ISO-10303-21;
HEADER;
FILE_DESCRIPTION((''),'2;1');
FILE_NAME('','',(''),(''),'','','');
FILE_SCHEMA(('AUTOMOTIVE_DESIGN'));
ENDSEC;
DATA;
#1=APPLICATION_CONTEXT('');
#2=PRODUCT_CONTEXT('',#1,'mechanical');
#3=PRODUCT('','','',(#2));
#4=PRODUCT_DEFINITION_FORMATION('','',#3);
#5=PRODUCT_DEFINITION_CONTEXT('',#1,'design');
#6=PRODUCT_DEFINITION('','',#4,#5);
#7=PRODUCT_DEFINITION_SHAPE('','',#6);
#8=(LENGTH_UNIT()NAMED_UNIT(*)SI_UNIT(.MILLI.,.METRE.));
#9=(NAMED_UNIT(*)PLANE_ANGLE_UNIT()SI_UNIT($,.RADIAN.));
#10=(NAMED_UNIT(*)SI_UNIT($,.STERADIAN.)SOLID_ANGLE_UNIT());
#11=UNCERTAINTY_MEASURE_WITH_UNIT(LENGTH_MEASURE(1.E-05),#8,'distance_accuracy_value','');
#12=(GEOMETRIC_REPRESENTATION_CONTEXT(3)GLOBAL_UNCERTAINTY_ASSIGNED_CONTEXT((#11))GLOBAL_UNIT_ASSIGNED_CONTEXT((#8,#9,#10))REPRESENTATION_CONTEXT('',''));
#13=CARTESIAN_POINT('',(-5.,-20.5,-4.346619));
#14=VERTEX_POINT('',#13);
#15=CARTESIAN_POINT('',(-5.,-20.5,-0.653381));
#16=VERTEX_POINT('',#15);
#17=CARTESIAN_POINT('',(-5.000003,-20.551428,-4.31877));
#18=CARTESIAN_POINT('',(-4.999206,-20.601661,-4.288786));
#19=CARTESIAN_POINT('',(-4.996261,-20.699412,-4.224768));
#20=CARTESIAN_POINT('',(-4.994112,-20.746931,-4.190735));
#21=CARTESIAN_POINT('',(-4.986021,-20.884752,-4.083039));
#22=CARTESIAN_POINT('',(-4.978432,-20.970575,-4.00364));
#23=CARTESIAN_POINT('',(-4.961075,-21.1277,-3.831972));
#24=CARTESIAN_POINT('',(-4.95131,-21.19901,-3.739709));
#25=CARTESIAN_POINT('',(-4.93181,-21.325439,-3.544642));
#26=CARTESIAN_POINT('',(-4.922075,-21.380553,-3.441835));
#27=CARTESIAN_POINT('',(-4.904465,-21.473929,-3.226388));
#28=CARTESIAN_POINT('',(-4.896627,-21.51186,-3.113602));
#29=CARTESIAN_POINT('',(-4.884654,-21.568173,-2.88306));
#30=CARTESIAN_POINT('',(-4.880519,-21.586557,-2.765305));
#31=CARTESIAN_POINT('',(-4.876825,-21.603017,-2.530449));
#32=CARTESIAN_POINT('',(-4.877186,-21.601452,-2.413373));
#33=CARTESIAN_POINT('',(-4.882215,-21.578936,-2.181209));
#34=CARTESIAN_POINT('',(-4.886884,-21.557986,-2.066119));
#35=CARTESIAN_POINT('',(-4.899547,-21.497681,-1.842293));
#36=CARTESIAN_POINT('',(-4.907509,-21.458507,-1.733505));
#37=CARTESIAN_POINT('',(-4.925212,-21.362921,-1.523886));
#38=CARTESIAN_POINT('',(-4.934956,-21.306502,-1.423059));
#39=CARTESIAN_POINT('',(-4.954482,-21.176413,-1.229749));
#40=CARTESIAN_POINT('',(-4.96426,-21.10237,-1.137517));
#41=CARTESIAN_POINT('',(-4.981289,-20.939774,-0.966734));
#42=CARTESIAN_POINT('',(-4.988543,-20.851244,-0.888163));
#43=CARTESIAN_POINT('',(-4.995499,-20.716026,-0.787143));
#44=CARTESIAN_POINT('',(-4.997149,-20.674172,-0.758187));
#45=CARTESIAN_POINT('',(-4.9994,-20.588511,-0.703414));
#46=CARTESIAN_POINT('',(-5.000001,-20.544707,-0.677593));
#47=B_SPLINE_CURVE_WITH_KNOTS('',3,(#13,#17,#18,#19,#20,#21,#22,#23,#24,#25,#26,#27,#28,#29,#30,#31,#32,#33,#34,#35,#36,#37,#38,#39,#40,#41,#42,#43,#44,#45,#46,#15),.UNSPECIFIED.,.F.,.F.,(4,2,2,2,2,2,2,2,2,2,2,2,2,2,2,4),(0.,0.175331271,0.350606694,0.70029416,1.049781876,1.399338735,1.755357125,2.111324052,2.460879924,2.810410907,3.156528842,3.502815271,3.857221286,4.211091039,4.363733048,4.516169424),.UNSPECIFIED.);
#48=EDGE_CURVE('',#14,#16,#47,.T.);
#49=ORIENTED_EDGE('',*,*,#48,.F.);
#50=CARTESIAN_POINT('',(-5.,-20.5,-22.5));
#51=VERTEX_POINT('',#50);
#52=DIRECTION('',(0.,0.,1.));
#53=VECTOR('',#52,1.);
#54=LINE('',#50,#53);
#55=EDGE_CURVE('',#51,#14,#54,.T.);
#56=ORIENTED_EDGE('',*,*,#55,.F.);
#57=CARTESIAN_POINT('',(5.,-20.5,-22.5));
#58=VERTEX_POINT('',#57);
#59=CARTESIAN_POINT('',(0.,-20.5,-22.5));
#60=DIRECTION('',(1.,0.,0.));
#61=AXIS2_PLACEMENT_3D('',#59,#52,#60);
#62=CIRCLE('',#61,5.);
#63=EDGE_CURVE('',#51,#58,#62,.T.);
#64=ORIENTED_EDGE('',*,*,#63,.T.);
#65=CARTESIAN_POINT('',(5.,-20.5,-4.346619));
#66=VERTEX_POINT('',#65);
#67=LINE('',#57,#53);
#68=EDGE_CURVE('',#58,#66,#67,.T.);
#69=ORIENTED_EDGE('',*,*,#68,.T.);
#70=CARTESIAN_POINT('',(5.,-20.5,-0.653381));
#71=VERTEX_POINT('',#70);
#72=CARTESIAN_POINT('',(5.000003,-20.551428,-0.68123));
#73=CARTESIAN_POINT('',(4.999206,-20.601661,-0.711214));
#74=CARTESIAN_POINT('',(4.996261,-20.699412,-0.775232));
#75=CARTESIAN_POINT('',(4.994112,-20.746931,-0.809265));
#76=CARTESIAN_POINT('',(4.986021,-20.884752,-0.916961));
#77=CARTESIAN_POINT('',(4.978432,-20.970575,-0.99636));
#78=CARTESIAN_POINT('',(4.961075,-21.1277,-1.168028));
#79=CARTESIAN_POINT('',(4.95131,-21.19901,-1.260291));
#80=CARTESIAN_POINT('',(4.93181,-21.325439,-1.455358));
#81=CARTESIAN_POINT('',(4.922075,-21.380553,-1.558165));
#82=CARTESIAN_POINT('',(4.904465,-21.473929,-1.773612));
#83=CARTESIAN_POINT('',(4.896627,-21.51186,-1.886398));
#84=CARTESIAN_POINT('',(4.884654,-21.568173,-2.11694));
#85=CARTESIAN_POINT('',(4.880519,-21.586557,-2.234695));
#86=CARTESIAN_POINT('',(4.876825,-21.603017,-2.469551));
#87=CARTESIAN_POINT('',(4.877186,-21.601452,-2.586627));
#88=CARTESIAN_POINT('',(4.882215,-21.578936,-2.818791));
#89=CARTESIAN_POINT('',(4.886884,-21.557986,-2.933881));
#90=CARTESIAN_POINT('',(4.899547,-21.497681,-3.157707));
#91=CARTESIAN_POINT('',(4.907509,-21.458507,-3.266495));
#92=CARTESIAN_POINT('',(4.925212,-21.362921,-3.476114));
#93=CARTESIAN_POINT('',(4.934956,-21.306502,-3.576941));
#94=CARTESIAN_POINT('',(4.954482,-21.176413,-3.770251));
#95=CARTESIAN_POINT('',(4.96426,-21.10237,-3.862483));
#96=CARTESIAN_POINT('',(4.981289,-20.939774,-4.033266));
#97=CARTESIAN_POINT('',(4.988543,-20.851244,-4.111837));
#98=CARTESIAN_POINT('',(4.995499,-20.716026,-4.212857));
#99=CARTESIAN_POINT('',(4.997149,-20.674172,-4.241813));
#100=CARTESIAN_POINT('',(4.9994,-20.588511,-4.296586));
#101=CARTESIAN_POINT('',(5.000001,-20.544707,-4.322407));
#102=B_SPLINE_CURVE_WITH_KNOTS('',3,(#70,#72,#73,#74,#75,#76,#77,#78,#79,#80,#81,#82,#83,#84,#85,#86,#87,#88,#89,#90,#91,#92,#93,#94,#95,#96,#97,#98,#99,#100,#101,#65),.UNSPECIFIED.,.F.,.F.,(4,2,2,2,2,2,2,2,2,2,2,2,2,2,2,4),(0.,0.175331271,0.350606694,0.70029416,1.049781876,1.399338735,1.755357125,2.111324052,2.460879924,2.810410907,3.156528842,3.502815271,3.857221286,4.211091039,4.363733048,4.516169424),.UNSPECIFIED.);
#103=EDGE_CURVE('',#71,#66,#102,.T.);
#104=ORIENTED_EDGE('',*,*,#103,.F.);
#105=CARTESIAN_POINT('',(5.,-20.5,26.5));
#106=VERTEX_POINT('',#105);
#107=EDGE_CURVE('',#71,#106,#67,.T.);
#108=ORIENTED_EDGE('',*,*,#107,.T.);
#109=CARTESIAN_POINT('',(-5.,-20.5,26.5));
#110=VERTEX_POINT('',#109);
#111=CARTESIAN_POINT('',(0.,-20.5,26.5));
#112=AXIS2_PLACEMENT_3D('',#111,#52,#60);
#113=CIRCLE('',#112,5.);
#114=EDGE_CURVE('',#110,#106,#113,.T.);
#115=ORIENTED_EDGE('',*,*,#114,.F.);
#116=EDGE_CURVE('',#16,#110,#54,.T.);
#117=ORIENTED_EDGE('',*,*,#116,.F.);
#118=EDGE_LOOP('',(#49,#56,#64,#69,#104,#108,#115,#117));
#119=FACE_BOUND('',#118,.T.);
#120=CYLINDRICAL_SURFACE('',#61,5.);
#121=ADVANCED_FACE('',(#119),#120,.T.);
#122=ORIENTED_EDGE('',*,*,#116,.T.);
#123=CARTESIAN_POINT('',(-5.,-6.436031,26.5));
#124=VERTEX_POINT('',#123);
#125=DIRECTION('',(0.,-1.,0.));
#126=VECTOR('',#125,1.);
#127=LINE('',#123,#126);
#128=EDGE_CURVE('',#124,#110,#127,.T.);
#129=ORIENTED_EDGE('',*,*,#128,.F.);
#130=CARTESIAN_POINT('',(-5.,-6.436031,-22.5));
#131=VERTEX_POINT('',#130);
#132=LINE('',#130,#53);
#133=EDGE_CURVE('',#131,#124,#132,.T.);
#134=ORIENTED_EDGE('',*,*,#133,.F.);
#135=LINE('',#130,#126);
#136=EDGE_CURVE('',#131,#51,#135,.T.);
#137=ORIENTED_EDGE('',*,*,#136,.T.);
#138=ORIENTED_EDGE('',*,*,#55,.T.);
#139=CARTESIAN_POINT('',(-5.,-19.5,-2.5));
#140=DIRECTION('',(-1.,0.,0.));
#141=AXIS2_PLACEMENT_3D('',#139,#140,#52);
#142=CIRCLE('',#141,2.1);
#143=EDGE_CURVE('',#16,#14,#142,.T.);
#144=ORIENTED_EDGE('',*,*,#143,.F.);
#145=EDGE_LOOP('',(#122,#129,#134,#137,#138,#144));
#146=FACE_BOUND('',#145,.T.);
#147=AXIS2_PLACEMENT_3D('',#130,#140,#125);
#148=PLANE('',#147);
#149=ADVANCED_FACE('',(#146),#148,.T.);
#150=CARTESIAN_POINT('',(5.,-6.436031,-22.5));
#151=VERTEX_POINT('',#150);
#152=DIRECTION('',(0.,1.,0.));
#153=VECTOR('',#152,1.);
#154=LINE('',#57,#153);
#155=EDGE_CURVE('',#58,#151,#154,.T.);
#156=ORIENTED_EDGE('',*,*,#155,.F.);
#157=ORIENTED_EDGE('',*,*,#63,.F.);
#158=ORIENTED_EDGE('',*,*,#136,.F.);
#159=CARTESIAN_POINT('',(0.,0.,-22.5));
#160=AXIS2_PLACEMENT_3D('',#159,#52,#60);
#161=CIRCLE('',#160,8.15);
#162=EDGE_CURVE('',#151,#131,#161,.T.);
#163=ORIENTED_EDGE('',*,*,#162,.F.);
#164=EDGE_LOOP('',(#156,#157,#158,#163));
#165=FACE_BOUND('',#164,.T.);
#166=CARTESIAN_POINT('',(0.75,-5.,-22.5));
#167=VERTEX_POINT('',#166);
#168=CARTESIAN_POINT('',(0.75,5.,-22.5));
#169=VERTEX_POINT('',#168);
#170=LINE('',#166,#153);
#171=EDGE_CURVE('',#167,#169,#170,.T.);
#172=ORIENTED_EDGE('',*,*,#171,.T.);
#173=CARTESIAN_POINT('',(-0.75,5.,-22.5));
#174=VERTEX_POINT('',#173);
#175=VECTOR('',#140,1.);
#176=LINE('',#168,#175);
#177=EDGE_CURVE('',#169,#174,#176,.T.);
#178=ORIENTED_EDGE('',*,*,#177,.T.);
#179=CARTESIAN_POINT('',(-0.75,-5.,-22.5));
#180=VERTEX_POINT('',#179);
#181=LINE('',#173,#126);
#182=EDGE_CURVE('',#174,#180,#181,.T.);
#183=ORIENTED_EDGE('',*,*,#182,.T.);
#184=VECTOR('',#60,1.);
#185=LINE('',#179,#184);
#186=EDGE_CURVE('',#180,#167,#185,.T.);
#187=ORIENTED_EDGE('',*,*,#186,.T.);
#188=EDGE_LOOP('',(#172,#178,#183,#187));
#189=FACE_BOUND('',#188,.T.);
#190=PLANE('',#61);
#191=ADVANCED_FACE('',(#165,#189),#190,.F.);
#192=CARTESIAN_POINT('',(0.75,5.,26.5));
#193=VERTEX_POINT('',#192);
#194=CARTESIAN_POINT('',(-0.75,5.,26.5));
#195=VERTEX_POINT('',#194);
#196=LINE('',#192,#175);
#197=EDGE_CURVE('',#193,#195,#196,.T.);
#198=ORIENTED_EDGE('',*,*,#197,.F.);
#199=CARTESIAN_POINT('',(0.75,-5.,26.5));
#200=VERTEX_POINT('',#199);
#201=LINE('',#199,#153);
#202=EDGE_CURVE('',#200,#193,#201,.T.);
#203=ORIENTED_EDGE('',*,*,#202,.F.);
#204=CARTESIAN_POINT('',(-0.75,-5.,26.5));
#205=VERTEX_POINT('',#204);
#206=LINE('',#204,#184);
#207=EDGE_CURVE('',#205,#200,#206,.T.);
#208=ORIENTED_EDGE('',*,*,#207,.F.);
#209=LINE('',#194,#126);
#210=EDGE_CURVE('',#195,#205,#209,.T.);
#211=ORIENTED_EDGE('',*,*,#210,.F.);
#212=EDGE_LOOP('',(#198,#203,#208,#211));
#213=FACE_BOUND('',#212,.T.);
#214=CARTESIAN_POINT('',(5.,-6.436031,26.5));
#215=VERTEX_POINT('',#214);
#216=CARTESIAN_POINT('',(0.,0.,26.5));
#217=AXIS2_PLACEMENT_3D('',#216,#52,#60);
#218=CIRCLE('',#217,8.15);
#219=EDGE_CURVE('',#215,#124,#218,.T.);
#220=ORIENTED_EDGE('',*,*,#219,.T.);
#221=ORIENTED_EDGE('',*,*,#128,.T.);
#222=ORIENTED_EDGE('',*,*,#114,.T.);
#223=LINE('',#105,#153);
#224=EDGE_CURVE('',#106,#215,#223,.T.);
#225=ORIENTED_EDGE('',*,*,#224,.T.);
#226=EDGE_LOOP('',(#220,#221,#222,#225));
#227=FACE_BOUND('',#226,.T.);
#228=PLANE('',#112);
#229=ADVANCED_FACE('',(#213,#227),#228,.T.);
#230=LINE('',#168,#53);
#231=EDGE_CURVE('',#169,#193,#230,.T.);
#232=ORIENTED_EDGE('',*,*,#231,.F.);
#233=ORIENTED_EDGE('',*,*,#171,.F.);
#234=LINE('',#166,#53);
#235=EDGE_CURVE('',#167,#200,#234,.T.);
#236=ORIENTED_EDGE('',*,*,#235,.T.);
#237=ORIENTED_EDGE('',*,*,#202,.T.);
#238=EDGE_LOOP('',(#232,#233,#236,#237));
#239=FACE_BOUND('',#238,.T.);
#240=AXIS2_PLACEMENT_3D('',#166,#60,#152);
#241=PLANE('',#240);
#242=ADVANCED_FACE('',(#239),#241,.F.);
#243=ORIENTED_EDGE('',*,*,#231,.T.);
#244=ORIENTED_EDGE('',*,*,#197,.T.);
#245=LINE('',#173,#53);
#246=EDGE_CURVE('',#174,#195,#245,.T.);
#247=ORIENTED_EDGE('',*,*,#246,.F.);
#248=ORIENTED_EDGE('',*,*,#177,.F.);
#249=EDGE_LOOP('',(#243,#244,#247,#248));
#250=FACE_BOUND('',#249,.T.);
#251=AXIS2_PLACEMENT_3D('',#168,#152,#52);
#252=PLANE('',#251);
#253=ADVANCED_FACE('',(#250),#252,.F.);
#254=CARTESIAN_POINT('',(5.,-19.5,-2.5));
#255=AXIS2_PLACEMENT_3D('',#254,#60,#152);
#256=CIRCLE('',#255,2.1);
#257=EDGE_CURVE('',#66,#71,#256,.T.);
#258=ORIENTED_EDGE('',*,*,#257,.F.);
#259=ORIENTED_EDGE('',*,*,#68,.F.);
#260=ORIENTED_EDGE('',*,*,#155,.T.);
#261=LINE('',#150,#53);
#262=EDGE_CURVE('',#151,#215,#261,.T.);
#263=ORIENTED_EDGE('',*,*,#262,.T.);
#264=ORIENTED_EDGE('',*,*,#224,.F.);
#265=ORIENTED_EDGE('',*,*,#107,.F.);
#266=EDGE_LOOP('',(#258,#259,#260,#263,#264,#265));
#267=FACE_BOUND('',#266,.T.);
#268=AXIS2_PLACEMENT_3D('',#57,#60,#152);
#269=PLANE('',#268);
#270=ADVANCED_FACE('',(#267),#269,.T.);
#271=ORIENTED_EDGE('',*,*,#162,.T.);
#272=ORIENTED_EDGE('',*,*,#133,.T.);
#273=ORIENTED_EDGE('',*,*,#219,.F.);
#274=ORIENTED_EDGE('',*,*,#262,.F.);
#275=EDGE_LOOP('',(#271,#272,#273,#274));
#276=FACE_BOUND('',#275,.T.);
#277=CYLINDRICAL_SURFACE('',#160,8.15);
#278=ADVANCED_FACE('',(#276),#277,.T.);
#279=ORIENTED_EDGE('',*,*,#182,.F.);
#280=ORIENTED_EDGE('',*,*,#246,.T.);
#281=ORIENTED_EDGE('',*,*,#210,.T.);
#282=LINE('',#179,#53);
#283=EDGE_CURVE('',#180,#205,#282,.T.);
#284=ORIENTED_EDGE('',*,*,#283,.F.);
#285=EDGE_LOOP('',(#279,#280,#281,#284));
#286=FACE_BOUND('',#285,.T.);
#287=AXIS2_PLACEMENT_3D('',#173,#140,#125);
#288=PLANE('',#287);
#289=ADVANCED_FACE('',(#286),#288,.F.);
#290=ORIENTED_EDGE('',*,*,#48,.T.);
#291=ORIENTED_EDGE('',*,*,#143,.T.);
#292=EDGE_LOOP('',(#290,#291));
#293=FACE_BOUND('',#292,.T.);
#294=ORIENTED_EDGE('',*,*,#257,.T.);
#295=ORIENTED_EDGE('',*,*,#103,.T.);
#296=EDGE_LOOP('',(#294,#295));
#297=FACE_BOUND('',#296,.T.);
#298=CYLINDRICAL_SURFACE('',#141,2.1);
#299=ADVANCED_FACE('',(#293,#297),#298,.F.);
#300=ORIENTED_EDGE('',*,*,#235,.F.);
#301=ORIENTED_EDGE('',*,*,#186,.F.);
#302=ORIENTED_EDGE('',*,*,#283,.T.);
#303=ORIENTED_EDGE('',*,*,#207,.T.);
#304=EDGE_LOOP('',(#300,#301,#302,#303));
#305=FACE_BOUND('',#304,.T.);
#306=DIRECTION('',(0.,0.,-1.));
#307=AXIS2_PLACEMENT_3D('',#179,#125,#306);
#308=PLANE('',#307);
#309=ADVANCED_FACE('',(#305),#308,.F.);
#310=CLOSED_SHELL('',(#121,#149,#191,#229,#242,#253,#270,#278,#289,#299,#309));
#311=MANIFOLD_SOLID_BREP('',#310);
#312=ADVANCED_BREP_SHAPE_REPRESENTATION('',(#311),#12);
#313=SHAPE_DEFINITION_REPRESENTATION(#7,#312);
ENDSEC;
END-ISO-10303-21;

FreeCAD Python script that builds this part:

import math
import FreeCAD as App
import Part
import Sketcher

doc = App.newDocument("Part")
params = doc.addObject("Spreadsheet::Sheet", "Params")
for row, (alias, value) in enumerate([
    ("sketch1_radius", "5 mm"),
    ("sketch1_height", "10 mm"),
    ("sketch1_radius2", "8.15 mm"),
    ("sketch1_width", "1.5 mm"),
    ("pad1_length", "9 mm"),
    ("pad1_length2", "40 mm"),
    ("sketch2_diameter", "4.2 mm"),
    ("hole_diameter", "4.2 mm"),
], start=1):
    params.set(f"A{row}", alias)
    params.set(f"B{row}", "=" + value)
    params.setAlias(f"B{row}", alias)

body = doc.addObject("PartDesign::Body", "Body")

sketch1 = doc.addObject("Sketcher::SketchObject", "Sketch")
body.addObject(sketch1)
sketch1.AttachmentSupport = (doc.XY_Plane, [""])
sketch1.MapMode = "FlatFace"
sketch1.AttachmentOffset = App.Placement(App.Vector(0, 0, 17.5), App.Rotation())
sketch1.addGeometry([
    Part.LineSegment(App.Vector(-5, -6.436031, 0), App.Vector(-5, -20.5, 0)),
    Part.ArcOfCircle(Part.Circle(App.Vector(0, -20.5, 0), App.Vector(0, 0, 1), 5), math.radians(180), math.radians(360)),
    Part.LineSegment(App.Vector(5, -20.5, 0), App.Vector(5, -6.436031, 0)),
    Part.ArcOfCircle(Part.Circle(App.Vector(0, 0, 0), App.Vector(0, 0, 1), 8.15), math.radians(-52.157214), math.radians(232.157214)),
    Part.LineSegment(App.Vector(0.75, -5, 0), App.Vector(-0.75, -5, 0)),
    Part.LineSegment(App.Vector(-0.75, -5, 0), App.Vector(-0.75, 5, 0)),
    Part.LineSegment(App.Vector(-0.75, 5, 0), App.Vector(0.75, 5, 0)),
    Part.LineSegment(App.Vector(0.75, 5, 0), App.Vector(0.75, -5, 0)),
], False)
sketch1.addConstraint([
    Sketcher.Constraint("Tangent", 0, 2, 1, 1),
    Sketcher.Constraint("Tangent", 1, 2, 2, 1),
    Sketcher.Constraint("Coincident", 2, 2, 3, 1),
    Sketcher.Constraint("Coincident", 3, 2, 0, 1),
    Sketcher.Constraint("Coincident", 4, 2, 5, 1),
    Sketcher.Constraint("Coincident", 5, 2, 6, 1),
    Sketcher.Constraint("Coincident", 6, 2, 7, 1),
    Sketcher.Constraint("Coincident", 7, 2, 4, 1),
    Sketcher.Constraint("Vertical", 0),
    Sketcher.Constraint("Vertical", 2),
    Sketcher.Constraint("Horizontal", 4),
    Sketcher.Constraint("Vertical", 5),
    Sketcher.Constraint("Horizontal", 6),
    Sketcher.Constraint("Vertical", 7),
    Sketcher.Constraint("Coincident", 3, 3, -1, 1),
    Sketcher.Constraint("Symmetric", 4, 2, 6, 2, -1, 1),
    Sketcher.Constraint("PointOnObject", 1, 3, -2),
    Sketcher.Constraint("Radius", 1, 5.0),
    Sketcher.Constraint("DistanceY", 5, 1, 5, 2, 10.0),
    Sketcher.Constraint("Radius", 3, 8.15),
    Sketcher.Constraint("DistanceX", 4, 2, 4, 1, 1.5),
    Sketcher.Constraint("DistanceY", 1, 3, -1, 1, 20.5),
])
sketch1.setExpression("Constraints[17]", "Params.sketch1_radius")
sketch1.setExpression("Constraints[18]", "Params.sketch1_height")
sketch1.setExpression("Constraints[19]", "Params.sketch1_radius2")
sketch1.setExpression("Constraints[20]", "Params.sketch1_width")
pad1 = doc.addObject("PartDesign::Pad", "Pad")
body.addObject(pad1)
pad1.Profile = sketch1
pad1.Type = "TwoLengths"
pad1.setExpression("Length", "Params.pad1_length")
pad1.setExpression("Length2", "Params.pad1_length2")

sketch2 = doc.addObject("Sketcher::SketchObject", "Sketch001")
body.addObject(sketch2)
sketch2.AttachmentSupport = (doc.YZ_Plane, [""])
sketch2.MapMode = "FlatFace"
sketch2.AttachmentOffset = App.Placement(App.Vector(0, 0, -5), App.Rotation())
sketch2.addGeometry(Part.Circle(App.Vector(-19.5, -2.5, 0), App.Vector(0, 0, 1), 2.1), False)
sketch2.addConstraint([
    Sketcher.Constraint("Diameter", 0, 4.2),
    Sketcher.Constraint("DistanceX", 0, 3, -1, 1, 19.5),
    Sketcher.Constraint("DistanceY", 0, 3, -1, 1, 2.5),
])
sketch2.setExpression("Constraints[0]", "Params.sketch2_diameter")
doc.recompute()
hole = doc.addObject("PartDesign::Hole", "Hole")
body.addObject(hole)
hole.Profile = sketch2
hole.ThreadType = "None"
hole.setExpression("Diameter", "Params.hole_diameter")
hole.DepthType = "ThroughAll"
hole.Reversed = True

doc.recompute()
